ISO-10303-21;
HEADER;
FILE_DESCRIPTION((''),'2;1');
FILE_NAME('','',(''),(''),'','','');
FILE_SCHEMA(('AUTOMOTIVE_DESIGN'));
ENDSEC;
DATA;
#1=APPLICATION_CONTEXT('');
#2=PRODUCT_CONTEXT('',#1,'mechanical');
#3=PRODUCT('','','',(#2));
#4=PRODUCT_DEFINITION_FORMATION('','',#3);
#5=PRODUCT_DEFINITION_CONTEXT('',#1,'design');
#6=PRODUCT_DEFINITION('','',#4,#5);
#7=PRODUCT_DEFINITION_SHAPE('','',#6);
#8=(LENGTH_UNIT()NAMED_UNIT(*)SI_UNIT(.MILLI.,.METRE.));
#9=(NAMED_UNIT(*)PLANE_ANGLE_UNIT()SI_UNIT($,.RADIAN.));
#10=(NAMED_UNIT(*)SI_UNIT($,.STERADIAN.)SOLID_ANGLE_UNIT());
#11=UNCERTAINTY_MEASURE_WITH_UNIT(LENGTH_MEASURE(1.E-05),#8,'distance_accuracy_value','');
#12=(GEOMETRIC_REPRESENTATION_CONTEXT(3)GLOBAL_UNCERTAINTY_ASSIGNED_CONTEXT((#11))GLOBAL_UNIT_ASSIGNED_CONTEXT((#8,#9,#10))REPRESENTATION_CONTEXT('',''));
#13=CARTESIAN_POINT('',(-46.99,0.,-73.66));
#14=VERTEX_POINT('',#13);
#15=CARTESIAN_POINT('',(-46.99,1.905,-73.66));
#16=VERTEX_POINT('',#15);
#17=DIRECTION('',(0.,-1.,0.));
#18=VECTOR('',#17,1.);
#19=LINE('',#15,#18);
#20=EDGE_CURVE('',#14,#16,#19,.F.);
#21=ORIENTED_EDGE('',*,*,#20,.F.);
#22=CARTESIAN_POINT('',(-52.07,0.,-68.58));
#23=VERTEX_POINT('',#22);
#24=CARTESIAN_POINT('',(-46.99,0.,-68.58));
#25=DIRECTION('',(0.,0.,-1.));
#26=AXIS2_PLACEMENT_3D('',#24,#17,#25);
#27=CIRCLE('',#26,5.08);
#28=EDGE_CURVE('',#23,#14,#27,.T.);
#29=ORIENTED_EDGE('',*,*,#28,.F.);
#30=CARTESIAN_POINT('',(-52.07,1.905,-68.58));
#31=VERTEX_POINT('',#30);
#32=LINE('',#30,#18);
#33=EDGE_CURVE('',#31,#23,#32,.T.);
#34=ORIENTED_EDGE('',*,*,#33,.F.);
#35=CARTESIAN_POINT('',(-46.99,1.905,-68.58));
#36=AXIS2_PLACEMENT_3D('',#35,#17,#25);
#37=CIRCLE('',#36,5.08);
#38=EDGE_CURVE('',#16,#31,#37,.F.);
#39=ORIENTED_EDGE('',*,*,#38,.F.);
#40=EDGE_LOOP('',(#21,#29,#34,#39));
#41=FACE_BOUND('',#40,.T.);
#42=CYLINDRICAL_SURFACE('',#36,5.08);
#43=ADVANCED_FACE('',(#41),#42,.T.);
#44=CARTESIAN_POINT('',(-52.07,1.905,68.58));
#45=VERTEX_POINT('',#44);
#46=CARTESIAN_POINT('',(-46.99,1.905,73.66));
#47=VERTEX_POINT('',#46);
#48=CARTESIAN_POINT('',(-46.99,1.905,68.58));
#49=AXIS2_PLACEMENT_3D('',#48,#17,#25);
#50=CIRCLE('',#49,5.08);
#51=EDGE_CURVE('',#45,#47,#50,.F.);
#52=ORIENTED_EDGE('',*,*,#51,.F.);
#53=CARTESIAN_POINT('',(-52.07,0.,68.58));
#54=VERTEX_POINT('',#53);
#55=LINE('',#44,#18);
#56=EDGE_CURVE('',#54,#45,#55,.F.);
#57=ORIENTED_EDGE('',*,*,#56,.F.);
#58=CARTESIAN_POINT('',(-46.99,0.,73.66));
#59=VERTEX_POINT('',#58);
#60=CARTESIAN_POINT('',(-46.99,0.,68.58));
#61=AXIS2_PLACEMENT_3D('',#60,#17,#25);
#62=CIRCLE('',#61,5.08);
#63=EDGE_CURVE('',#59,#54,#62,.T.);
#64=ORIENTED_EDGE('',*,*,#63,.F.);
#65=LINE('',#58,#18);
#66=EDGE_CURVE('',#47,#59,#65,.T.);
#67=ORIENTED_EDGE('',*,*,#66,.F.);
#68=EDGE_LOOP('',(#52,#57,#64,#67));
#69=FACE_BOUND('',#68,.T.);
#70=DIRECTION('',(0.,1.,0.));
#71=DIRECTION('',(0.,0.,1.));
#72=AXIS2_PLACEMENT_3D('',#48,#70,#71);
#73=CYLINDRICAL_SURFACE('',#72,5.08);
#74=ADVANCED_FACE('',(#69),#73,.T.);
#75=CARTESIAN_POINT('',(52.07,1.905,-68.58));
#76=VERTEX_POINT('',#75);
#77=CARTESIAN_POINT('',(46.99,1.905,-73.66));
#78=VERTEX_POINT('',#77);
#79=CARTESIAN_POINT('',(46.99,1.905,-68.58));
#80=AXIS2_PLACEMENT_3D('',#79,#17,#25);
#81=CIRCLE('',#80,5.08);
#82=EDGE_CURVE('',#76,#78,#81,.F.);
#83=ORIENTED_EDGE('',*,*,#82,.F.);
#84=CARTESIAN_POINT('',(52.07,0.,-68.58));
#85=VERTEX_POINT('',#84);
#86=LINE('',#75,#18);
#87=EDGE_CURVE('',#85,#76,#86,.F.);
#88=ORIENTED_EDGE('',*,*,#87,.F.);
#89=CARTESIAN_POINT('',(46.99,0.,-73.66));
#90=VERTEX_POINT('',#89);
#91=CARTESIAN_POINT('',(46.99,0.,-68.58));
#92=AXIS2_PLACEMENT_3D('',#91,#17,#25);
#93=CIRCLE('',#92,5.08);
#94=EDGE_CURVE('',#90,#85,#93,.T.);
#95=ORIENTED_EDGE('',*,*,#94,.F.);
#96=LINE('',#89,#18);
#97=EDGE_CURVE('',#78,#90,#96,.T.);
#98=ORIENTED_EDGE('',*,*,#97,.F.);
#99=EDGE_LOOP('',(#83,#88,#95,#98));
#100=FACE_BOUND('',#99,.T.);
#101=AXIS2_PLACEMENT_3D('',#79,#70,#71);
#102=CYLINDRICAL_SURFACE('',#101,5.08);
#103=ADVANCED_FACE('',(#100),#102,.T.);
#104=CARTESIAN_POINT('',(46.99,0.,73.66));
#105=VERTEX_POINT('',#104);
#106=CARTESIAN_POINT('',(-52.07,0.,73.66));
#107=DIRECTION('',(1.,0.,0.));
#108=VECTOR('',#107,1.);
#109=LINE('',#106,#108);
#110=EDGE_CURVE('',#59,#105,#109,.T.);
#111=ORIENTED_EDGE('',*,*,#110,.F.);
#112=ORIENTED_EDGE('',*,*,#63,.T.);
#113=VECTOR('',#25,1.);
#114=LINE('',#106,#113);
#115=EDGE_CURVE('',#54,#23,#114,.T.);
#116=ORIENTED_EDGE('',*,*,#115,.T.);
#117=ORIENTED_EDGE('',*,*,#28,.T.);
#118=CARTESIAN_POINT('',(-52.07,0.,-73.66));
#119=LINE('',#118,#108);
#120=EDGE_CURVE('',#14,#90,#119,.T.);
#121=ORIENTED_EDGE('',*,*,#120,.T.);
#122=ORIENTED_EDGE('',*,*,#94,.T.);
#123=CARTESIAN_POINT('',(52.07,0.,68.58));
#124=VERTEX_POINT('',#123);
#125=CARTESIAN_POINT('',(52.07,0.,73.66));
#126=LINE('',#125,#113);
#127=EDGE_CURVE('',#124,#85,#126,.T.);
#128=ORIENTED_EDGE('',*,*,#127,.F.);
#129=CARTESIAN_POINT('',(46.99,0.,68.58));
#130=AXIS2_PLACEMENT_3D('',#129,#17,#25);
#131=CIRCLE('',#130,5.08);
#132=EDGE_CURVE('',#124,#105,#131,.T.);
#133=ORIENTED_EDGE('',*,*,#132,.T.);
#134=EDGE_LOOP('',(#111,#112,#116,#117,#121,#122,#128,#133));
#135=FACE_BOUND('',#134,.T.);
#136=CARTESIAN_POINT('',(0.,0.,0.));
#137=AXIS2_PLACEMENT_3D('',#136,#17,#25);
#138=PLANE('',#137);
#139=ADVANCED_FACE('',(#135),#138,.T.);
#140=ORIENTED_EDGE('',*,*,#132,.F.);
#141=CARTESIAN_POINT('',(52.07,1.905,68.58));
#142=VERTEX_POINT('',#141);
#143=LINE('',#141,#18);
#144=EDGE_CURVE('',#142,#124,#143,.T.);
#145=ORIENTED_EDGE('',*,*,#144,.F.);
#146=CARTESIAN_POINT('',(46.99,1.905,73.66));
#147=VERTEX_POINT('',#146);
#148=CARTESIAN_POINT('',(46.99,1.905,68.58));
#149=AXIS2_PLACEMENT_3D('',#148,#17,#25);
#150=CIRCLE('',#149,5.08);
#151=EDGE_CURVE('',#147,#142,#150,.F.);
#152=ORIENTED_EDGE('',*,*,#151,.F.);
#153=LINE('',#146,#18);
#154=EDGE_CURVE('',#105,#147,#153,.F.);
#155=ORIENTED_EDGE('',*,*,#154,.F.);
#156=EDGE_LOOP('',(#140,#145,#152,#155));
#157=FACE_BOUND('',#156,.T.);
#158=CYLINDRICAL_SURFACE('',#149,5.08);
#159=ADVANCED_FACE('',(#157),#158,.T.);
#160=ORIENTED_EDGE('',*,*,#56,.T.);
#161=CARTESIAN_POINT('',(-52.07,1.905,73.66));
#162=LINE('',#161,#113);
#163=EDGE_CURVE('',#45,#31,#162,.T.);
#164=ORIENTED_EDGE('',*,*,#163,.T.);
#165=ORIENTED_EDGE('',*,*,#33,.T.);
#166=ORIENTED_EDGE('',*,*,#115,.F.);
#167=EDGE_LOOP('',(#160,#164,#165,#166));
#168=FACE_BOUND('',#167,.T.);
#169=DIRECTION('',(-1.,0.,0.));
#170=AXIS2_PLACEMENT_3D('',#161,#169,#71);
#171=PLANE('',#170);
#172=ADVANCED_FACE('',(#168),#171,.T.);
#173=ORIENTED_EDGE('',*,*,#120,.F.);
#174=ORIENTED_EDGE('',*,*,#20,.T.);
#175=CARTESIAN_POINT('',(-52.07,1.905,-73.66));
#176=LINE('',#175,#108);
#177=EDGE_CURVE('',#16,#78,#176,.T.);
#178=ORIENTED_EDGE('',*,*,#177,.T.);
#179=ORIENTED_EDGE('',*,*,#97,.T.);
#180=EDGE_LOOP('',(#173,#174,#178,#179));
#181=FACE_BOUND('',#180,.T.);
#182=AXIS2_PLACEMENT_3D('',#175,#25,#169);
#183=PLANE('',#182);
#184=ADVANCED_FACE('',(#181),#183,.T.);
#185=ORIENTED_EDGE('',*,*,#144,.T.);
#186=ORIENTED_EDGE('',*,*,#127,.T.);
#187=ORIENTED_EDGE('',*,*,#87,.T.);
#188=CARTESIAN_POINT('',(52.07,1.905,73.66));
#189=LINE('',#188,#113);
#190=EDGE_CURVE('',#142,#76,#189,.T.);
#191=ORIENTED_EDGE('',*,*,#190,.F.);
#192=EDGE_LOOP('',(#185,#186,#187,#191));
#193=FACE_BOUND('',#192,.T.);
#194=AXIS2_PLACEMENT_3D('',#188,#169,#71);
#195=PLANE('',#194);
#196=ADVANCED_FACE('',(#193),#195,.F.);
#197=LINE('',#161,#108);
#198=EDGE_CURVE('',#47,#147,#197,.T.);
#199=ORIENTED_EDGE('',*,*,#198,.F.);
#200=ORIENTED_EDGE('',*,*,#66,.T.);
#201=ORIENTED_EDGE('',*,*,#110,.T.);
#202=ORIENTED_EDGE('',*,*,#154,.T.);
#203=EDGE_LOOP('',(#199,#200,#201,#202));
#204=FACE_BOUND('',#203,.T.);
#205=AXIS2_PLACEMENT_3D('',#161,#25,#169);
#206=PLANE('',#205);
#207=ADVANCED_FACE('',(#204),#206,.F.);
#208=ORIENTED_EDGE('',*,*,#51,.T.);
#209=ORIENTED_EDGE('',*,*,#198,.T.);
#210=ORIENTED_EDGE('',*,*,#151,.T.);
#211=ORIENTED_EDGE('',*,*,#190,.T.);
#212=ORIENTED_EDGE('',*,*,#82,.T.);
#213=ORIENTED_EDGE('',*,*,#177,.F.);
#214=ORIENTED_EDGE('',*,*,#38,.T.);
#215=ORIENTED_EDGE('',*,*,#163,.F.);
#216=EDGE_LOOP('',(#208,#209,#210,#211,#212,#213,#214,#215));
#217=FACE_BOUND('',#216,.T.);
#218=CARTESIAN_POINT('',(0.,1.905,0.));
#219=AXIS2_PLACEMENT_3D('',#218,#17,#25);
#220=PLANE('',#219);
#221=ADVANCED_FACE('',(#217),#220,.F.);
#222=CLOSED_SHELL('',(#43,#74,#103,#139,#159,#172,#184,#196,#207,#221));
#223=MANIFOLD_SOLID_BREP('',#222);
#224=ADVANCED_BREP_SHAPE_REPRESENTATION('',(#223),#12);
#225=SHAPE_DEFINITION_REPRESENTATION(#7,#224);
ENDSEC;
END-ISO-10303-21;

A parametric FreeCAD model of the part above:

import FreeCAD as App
import Part
import Sketcher
Q = App.Units.Quantity


def edges_at(feature, points):
    """Names of the edges that pass closest to the given points."""
    edges = feature.Shape.Edges
    near = lambda p: min(range(len(edges)), key=lambda i: edges[i].distToShape(Part.Vertex(*p))[0])
    return sorted({f"Edge{near(p) + 1}" for p in points})

doc = App.newDocument("Part")
body = doc.addObject("PartDesign::Body", "Body")

# Sketch on XZ plane
sketch1 = body.newObject("Sketcher::SketchObject", "Sketch")
sketch1.AttachmentSupport = (doc.getObject("XZ_Plane"), [""])
sketch1.MapMode = "FlatFace"
sketch1.addGeometry(Part.LineSegment(App.Vector(-52, -74, 0), App.Vector(-52, 74, 0)), False)
sketch1.addGeometry(Part.LineSegment(App.Vector(-52, 74, 0), App.Vector(52, 74, 0)), False)
sketch1.addGeometry(Part.LineSegment(App.Vector(52, 74, 0), App.Vector(52, -74, 0)), False)
sketch1.addGeometry(Part.LineSegment(App.Vector(52, -74, 0), App.Vector(-52, -74, 0)), False)
sketch1.addConstraint(Sketcher.Constraint("Coincident", 0, 2, 1, 1))
sketch1.addConstraint(Sketcher.Constraint("Coincident", 1, 2, 2, 1))
sketch1.addConstraint(Sketcher.Constraint("Coincident", 2, 2, 3, 1))
sketch1.addConstraint(Sketcher.Constraint("Coincident", 3, 2, 0, 1))
sketch1.addConstraint(Sketcher.Constraint("Vertical", 0))
sketch1.addConstraint(Sketcher.Constraint("Horizontal", 1))
sketch1.addConstraint(Sketcher.Constraint("Vertical", 2))
sketch1.addConstraint(Sketcher.Constraint("Horizontal", 3))
sketch1.addConstraint(Sketcher.Constraint("Symmetric", 0, 2, 2, 2, -1, 1))
sketch1.addConstraint(Sketcher.Constraint("DistanceX", 1, 1, 1, 2, Q("4.1 in")))
sketch1.addConstraint(Sketcher.Constraint("DistanceY", 0, 1, 0, 2, Q("5.8 in")))
pad1 = body.newObject("PartDesign::Pad", "Pad")
pad1.Profile = sketch1
pad1.Length = Q("0.075 in")
pad1.Reversed = True
doc.recompute()

fillet = body.newObject("PartDesign::Fillet", "Fillet")
fillet.Base = (pad1, edges_at(pad1, [
    (-52.07, 0.953, 73.66),
    (52.07, 0.953, 73.66),
    (52.07, 0.953, -73.66),
    (-52.07, 0.953, -73.66),
]))
fillet.Radius = Q("0.2 in")

doc.recompute()
